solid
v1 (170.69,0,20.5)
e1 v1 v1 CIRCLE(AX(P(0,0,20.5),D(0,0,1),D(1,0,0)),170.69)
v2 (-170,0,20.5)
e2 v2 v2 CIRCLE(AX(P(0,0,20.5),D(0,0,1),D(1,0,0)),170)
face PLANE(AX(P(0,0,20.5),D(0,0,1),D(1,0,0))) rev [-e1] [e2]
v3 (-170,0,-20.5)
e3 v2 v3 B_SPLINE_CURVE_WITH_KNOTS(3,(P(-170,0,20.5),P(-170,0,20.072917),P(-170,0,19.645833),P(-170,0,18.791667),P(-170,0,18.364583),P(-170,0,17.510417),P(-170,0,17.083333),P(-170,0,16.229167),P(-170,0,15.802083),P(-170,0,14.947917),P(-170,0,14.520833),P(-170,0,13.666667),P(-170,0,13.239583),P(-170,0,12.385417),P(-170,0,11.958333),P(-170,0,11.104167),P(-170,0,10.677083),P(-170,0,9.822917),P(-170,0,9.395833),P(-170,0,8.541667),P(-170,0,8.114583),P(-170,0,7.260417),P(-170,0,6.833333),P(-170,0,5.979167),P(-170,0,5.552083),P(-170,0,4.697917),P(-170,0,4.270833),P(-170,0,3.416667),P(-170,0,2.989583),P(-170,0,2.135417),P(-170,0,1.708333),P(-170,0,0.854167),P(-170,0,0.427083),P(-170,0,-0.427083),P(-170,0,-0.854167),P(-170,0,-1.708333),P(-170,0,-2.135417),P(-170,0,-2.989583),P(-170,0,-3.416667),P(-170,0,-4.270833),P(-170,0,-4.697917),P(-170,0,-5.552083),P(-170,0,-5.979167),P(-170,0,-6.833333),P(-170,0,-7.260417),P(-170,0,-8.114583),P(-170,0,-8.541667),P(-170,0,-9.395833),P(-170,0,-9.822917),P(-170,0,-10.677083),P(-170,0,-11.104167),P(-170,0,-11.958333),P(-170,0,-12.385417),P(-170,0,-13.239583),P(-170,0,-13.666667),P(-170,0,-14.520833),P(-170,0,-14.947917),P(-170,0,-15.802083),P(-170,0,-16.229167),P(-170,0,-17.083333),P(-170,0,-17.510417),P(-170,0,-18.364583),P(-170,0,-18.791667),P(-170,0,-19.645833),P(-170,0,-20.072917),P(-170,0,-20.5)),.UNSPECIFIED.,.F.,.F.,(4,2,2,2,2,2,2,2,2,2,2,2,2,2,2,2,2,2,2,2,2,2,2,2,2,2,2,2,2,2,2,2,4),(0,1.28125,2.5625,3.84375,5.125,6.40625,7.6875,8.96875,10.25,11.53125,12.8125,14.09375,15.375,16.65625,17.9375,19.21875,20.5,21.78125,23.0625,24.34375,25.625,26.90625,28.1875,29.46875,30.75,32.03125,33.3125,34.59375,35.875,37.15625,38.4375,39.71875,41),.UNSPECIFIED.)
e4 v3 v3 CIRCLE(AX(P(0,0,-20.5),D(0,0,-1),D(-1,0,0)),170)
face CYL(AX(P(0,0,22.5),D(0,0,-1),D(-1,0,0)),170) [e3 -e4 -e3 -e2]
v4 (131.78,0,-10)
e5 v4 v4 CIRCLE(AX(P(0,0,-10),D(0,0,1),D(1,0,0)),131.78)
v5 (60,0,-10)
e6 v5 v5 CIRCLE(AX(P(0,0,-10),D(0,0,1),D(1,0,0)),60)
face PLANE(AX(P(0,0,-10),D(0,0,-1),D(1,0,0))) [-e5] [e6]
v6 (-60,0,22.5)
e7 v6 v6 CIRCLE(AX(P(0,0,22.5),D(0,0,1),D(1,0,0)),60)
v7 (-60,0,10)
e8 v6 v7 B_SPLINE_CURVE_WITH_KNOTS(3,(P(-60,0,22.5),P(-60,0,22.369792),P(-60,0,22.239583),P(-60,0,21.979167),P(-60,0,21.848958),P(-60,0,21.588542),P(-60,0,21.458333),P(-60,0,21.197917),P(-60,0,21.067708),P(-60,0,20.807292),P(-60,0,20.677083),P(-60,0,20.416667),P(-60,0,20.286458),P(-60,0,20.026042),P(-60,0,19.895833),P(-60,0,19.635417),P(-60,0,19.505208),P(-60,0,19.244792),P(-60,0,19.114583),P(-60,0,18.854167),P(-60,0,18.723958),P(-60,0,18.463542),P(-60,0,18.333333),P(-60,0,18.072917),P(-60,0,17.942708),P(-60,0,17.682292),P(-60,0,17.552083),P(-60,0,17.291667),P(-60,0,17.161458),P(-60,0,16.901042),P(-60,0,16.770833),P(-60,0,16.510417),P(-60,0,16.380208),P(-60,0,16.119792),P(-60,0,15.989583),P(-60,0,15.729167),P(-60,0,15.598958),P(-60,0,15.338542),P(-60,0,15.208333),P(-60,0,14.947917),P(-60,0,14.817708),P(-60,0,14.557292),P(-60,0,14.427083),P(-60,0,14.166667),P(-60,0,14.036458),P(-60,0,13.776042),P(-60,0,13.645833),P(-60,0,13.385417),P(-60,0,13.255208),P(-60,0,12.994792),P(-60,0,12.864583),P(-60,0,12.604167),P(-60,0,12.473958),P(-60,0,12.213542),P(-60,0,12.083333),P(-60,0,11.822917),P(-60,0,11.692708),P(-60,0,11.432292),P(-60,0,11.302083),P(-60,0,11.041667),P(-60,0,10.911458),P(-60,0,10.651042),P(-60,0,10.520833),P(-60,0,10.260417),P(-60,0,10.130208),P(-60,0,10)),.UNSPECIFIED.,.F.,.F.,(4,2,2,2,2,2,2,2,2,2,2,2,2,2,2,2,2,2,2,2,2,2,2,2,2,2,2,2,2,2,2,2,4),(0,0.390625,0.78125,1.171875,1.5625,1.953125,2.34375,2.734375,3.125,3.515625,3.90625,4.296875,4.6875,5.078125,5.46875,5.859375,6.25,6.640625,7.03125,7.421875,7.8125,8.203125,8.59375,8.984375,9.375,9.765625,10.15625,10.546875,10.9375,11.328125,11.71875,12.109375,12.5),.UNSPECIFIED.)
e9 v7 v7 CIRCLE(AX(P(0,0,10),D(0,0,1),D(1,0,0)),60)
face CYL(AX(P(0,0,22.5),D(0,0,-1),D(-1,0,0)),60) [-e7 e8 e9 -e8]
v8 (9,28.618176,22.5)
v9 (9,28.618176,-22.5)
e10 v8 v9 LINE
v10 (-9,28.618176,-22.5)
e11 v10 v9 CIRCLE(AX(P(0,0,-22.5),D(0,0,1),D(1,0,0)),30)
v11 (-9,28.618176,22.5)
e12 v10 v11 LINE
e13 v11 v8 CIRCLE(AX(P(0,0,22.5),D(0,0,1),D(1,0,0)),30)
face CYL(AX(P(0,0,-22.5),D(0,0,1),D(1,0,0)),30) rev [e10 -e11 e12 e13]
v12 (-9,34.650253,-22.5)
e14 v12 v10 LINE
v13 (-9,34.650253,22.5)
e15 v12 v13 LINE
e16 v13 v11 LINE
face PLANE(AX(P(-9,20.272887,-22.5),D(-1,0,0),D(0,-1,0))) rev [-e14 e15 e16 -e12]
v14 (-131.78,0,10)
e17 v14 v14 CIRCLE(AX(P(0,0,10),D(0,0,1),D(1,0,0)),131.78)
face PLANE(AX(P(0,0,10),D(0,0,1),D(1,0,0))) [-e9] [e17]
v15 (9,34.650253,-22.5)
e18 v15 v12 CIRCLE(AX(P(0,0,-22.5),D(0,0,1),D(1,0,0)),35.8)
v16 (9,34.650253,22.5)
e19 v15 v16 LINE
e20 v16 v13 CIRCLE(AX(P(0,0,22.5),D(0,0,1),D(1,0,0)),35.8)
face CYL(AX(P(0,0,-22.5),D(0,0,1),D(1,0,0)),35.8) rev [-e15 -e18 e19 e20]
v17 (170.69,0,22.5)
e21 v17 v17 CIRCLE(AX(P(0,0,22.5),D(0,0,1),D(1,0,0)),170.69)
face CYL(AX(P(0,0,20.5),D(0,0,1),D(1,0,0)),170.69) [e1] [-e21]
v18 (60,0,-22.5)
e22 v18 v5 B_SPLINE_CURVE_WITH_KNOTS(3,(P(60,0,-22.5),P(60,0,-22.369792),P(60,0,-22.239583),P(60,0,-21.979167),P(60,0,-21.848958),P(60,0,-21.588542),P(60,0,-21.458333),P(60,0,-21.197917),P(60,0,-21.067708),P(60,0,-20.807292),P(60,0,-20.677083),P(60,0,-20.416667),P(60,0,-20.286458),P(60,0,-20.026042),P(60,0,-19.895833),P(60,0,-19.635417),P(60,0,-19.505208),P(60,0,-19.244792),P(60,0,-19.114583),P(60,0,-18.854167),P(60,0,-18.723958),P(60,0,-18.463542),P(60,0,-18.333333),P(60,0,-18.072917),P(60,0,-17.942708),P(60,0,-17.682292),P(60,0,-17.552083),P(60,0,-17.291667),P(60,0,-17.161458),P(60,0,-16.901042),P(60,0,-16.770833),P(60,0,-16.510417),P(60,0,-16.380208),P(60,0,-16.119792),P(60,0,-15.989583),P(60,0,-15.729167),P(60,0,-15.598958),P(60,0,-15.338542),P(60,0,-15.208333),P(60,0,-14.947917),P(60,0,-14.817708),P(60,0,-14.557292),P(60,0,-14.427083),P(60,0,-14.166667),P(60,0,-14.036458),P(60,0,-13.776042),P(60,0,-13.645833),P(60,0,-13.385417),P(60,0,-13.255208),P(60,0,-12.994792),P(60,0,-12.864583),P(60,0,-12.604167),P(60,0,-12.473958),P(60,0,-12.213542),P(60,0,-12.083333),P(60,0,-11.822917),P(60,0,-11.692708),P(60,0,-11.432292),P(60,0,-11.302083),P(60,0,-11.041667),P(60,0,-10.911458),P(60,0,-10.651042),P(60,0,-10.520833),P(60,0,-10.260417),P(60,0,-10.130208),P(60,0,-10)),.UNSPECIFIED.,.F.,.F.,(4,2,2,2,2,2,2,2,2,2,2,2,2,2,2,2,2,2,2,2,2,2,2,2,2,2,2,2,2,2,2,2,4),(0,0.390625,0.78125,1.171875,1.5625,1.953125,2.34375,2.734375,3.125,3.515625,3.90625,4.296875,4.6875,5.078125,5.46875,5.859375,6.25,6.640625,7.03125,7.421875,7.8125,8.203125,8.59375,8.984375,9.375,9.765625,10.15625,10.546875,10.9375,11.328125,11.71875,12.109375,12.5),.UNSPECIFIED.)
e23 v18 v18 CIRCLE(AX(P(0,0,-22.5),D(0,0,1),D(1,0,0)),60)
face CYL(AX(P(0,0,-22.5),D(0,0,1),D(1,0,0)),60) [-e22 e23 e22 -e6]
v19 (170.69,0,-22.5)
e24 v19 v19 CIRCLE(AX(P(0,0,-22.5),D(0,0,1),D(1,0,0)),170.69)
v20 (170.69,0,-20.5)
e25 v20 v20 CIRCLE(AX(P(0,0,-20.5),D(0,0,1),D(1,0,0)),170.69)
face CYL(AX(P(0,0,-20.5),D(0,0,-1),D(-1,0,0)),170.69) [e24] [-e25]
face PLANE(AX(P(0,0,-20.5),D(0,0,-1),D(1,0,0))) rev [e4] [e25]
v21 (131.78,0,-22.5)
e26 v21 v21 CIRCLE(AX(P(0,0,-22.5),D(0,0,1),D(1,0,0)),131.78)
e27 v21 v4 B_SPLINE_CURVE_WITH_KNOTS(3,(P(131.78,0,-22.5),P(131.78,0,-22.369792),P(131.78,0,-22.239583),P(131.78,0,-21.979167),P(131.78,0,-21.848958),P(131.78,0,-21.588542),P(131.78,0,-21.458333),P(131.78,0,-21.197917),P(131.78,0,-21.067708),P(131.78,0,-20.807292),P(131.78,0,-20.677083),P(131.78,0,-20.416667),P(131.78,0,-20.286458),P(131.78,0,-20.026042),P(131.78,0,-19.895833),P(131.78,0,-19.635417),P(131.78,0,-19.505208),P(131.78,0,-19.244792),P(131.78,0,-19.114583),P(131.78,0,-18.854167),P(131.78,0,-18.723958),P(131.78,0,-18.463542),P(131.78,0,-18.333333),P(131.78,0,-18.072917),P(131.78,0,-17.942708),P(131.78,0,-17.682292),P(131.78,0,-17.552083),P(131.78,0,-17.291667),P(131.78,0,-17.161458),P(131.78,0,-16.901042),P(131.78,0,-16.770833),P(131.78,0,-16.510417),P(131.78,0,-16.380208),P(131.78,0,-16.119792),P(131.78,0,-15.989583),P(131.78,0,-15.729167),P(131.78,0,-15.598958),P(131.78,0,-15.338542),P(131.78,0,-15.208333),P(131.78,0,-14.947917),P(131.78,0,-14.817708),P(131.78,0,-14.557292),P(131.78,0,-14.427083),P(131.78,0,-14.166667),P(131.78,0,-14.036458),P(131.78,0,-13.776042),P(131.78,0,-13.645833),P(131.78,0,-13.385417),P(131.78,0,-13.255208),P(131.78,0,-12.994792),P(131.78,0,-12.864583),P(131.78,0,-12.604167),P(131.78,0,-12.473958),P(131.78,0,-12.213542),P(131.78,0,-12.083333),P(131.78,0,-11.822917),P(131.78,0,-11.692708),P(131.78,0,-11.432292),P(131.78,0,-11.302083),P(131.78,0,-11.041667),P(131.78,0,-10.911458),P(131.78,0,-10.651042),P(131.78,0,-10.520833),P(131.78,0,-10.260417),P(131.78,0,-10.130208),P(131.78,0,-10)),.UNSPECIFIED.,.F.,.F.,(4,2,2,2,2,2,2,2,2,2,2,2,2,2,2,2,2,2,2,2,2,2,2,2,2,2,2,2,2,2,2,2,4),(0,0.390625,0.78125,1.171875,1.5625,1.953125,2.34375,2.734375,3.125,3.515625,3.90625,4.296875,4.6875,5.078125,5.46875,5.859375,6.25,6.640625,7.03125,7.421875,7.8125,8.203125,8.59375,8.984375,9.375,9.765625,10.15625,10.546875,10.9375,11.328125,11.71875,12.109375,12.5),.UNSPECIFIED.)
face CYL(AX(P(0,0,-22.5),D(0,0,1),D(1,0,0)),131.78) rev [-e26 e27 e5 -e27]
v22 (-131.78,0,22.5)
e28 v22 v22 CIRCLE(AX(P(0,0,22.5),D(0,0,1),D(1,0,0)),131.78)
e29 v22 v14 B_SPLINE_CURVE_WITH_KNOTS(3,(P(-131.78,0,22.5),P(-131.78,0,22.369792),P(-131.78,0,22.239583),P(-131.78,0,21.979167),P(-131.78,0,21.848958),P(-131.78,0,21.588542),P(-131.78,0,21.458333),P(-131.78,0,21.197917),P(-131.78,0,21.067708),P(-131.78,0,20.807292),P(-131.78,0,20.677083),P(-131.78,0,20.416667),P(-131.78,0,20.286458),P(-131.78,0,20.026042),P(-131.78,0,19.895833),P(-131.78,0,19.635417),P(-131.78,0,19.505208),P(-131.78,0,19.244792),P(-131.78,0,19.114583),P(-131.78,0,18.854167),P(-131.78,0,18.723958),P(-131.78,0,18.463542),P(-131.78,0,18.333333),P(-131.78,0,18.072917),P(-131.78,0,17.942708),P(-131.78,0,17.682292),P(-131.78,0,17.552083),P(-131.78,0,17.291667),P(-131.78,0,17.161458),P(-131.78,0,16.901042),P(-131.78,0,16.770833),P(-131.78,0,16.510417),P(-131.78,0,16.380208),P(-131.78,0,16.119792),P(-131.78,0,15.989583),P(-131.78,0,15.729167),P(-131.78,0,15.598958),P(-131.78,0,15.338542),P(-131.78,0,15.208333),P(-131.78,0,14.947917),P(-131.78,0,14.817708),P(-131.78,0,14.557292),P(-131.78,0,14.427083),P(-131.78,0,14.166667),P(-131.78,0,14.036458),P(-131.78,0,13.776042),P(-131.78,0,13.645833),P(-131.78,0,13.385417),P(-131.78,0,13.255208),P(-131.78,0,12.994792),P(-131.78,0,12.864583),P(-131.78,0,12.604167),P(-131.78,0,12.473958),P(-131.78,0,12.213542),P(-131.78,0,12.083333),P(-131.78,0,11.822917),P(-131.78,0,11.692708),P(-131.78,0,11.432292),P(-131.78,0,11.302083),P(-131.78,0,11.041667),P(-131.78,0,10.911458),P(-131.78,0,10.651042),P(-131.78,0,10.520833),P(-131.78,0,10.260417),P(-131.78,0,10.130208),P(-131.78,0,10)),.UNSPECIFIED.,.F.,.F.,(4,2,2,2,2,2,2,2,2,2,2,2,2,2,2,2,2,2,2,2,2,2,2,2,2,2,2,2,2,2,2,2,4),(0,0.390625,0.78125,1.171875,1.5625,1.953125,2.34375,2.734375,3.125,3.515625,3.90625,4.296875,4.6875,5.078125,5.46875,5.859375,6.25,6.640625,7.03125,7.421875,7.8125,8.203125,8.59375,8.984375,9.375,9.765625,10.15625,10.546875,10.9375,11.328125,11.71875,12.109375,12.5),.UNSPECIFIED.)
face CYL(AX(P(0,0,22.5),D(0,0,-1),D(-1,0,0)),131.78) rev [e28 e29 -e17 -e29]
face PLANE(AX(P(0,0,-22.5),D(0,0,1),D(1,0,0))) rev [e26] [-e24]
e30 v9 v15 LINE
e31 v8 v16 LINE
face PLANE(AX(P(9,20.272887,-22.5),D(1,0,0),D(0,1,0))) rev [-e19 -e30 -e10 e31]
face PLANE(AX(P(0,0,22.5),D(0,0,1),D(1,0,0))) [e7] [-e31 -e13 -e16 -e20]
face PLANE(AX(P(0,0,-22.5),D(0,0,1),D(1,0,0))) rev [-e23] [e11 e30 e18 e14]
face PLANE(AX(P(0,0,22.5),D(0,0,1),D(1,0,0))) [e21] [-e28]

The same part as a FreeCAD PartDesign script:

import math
import FreeCAD as App
import Part
import Sketcher

V = App.Vector
Q = App.Units.Quantity

doc = App.newDocument("Part")
body = doc.addObject("PartDesign::Body", "Body")

sketch1 = body.newObject("Sketcher::SketchObject", "Sketch")
sketch1.AttachmentSupport = (doc.getObject("XY_Plane"), [""])
sketch1.MapMode = "FlatFace"
sketch1.addGeometry(Part.Circle(V(0, 0, 0), V(0, 0, 1), 170), False)
sketch1.addConstraint(Sketcher.Constraint("Coincident", 0, 3, -1, 1))
sketch1.addConstraint(Sketcher.Constraint("Diameter", 0, Q("340 mm")))
pad1 = body.newObject("PartDesign::Pad", "Pad")
pad1.Profile = sketch1
pad1.Length = 45
pad1.Midplane = True

sketch2 = body.newObject("Sketcher::SketchObject", "Sketch001")
sketch2.AttachmentSupport = (doc.getObject("XY_Plane"), [""])
sketch2.MapMode = "FlatFace"
sketch2.AttachmentOffset = App.Placement(V(0, 0, 22.5), App.Rotation())
sketch2.addGeometry(Part.Circle(V(0, 0, 0), V(0, 0, 1), 171), False)
sketch2.addConstraint(Sketcher.Constraint("Coincident", 0, 3, -1, 1))
sketch2.addConstraint(Sketcher.Constraint("Diameter", 0, Q("341.38 mm")))
pad2 = body.newObject("PartDesign::Pad", "Pad001")
pad2.Profile = sketch2
pad2.Length = 2
pad2.Reversed = True
doc.recompute()

mirrored = body.newObject("PartDesign::Mirrored", "Mirrored")
mirrored.Originals = [pad2]
mirrored.MirrorPlane = (doc.getObject("XY_Plane"), [""])
body.Tip = mirrored

sketch3 = body.newObject("Sketcher::SketchObject", "Sketch002")
sketch3.AttachmentSupport = (doc.getObject("XY_Plane"), [""])
sketch3.MapMode = "FlatFace"
sketch3.AttachmentOffset = App.Placement(V(0, 0, 10), App.Rotation())
sketch3.addGeometry(Part.Circle(V(0, 0, 0), V(0, 0, 1), 132), False)
sketch3.addGeometry(Part.Circle(V(0, 0, 0), V(0, 0, 1), 60), False)
sketch3.addConstraint(Sketcher.Constraint("Coincident", 0, 3, -1, 1))
sketch3.addConstraint(Sketcher.Constraint("Coincident", 1, 3, -1, 1))
sketch3.addConstraint(Sketcher.Constraint("Diameter", 1, Q("120 mm")))
sketch3.addConstraint(Sketcher.Constraint("Diameter", 0, Q("263.56 mm")))
pocket1 = body.newObject("PartDesign::Pocket", "Pocket")
pocket1.Profile = sketch3
pocket1.Type = "ThroughAll"
pocket1.Reversed = True
doc.recompute()

mirrored2 = body.newObject("PartDesign::Mirrored", "Mirrored001")
mirrored2.Originals = [pocket1]
mirrored2.MirrorPlane = (doc.getObject("XY_Plane"), [""])
body.Tip = mirrored2

sketch4 = body.newObject("Sketcher::SketchObject", "Sketch003")
sketch4.AttachmentSupport = (doc.getObject("XY_Plane"), [""])
sketch4.MapMode = "FlatFace"
sketch4.AttachmentOffset = App.Placement(V(0, 0, 22.5), App.Rotation())
sketch4.addGeometry(Part.Circle(V(0, 0, 0), V(0, 0, 1), 30), False)
sketch4.addConstraint(Sketcher.Constraint("Coincident", 0, 3, -1, 1))
sketch4.addConstraint(Sketcher.Constraint("Diameter", 0, Q("60 mm")))
pocket2 = body.newObject("PartDesign::Pocket", "Pocket001")
pocket2.Profile = sketch4
pocket2.Type = "ThroughAll"

sketch5 = body.newObject("Sketcher::SketchObject", "Sketch004")
sketch5.AttachmentSupport = (doc.getObject("XY_Plane"), [""])
sketch5.MapMode = "FlatFace"
sketch5.AttachmentOffset = App.Placement(V(0, 0, 22.5), App.Rotation())
sketch5.addGeometry(Part.LineSegment(V(9, 20, 0), V(9, 35, 0)), False)
sketch5.addGeometry(Part.ArcOfCircle(Part.Circle(V(0, 0, 0), V(0, 0, 1), 36), math.radians(75), math.radians(105)), False)
sketch5.addGeometry(Part.LineSegment(V(-9, 35, 0), V(-9, 20, 0)), False)
sketch5.addGeometry(Part.LineSegment(V(-9, 20, 0), V(9, 20, 0)), False)
sketch5.addConstraint(Sketcher.Constraint("Coincident", 0, 2, 1, 1))
sketch5.addConstraint(Sketcher.Constraint("Coincident", 1, 2, 2, 1))
sketch5.addConstraint(Sketcher.Constraint("Coincident", 2, 2, 3, 1))
sketch5.addConstraint(Sketcher.Constraint("Coincident", 3, 2, 0, 1))
sketch5.addConstraint(Sketcher.Constraint("Vertical", 0))
sketch5.addConstraint(Sketcher.Constraint("Vertical", 2))
sketch5.addConstraint(Sketcher.Constraint("Horizontal", 3))
sketch5.addConstraint(Sketcher.Constraint("Coincident", 1, 3, -1, 1))
sketch5.addConstraint(Sketcher.Constraint("Horizontal", 0, 2, 1, 2))
sketch5.addConstraint(Sketcher.Constraint("Radius", 1, Q("35.8 mm")))
sketch5.addConstraint(Sketcher.Constraint("DistanceX", 3, 1, 3, 2, Q("18 mm")))
sketch5.addConstraint(Sketcher.Constraint("DistanceY", 0, 1, 0, 2, Q("14.377365 mm")))
pocket3 = body.newObject("PartDesign::Pocket", "Pocket002")
pocket3.Profile = sketch5
pocket3.Type = "ThroughAll"

doc.recompute()
